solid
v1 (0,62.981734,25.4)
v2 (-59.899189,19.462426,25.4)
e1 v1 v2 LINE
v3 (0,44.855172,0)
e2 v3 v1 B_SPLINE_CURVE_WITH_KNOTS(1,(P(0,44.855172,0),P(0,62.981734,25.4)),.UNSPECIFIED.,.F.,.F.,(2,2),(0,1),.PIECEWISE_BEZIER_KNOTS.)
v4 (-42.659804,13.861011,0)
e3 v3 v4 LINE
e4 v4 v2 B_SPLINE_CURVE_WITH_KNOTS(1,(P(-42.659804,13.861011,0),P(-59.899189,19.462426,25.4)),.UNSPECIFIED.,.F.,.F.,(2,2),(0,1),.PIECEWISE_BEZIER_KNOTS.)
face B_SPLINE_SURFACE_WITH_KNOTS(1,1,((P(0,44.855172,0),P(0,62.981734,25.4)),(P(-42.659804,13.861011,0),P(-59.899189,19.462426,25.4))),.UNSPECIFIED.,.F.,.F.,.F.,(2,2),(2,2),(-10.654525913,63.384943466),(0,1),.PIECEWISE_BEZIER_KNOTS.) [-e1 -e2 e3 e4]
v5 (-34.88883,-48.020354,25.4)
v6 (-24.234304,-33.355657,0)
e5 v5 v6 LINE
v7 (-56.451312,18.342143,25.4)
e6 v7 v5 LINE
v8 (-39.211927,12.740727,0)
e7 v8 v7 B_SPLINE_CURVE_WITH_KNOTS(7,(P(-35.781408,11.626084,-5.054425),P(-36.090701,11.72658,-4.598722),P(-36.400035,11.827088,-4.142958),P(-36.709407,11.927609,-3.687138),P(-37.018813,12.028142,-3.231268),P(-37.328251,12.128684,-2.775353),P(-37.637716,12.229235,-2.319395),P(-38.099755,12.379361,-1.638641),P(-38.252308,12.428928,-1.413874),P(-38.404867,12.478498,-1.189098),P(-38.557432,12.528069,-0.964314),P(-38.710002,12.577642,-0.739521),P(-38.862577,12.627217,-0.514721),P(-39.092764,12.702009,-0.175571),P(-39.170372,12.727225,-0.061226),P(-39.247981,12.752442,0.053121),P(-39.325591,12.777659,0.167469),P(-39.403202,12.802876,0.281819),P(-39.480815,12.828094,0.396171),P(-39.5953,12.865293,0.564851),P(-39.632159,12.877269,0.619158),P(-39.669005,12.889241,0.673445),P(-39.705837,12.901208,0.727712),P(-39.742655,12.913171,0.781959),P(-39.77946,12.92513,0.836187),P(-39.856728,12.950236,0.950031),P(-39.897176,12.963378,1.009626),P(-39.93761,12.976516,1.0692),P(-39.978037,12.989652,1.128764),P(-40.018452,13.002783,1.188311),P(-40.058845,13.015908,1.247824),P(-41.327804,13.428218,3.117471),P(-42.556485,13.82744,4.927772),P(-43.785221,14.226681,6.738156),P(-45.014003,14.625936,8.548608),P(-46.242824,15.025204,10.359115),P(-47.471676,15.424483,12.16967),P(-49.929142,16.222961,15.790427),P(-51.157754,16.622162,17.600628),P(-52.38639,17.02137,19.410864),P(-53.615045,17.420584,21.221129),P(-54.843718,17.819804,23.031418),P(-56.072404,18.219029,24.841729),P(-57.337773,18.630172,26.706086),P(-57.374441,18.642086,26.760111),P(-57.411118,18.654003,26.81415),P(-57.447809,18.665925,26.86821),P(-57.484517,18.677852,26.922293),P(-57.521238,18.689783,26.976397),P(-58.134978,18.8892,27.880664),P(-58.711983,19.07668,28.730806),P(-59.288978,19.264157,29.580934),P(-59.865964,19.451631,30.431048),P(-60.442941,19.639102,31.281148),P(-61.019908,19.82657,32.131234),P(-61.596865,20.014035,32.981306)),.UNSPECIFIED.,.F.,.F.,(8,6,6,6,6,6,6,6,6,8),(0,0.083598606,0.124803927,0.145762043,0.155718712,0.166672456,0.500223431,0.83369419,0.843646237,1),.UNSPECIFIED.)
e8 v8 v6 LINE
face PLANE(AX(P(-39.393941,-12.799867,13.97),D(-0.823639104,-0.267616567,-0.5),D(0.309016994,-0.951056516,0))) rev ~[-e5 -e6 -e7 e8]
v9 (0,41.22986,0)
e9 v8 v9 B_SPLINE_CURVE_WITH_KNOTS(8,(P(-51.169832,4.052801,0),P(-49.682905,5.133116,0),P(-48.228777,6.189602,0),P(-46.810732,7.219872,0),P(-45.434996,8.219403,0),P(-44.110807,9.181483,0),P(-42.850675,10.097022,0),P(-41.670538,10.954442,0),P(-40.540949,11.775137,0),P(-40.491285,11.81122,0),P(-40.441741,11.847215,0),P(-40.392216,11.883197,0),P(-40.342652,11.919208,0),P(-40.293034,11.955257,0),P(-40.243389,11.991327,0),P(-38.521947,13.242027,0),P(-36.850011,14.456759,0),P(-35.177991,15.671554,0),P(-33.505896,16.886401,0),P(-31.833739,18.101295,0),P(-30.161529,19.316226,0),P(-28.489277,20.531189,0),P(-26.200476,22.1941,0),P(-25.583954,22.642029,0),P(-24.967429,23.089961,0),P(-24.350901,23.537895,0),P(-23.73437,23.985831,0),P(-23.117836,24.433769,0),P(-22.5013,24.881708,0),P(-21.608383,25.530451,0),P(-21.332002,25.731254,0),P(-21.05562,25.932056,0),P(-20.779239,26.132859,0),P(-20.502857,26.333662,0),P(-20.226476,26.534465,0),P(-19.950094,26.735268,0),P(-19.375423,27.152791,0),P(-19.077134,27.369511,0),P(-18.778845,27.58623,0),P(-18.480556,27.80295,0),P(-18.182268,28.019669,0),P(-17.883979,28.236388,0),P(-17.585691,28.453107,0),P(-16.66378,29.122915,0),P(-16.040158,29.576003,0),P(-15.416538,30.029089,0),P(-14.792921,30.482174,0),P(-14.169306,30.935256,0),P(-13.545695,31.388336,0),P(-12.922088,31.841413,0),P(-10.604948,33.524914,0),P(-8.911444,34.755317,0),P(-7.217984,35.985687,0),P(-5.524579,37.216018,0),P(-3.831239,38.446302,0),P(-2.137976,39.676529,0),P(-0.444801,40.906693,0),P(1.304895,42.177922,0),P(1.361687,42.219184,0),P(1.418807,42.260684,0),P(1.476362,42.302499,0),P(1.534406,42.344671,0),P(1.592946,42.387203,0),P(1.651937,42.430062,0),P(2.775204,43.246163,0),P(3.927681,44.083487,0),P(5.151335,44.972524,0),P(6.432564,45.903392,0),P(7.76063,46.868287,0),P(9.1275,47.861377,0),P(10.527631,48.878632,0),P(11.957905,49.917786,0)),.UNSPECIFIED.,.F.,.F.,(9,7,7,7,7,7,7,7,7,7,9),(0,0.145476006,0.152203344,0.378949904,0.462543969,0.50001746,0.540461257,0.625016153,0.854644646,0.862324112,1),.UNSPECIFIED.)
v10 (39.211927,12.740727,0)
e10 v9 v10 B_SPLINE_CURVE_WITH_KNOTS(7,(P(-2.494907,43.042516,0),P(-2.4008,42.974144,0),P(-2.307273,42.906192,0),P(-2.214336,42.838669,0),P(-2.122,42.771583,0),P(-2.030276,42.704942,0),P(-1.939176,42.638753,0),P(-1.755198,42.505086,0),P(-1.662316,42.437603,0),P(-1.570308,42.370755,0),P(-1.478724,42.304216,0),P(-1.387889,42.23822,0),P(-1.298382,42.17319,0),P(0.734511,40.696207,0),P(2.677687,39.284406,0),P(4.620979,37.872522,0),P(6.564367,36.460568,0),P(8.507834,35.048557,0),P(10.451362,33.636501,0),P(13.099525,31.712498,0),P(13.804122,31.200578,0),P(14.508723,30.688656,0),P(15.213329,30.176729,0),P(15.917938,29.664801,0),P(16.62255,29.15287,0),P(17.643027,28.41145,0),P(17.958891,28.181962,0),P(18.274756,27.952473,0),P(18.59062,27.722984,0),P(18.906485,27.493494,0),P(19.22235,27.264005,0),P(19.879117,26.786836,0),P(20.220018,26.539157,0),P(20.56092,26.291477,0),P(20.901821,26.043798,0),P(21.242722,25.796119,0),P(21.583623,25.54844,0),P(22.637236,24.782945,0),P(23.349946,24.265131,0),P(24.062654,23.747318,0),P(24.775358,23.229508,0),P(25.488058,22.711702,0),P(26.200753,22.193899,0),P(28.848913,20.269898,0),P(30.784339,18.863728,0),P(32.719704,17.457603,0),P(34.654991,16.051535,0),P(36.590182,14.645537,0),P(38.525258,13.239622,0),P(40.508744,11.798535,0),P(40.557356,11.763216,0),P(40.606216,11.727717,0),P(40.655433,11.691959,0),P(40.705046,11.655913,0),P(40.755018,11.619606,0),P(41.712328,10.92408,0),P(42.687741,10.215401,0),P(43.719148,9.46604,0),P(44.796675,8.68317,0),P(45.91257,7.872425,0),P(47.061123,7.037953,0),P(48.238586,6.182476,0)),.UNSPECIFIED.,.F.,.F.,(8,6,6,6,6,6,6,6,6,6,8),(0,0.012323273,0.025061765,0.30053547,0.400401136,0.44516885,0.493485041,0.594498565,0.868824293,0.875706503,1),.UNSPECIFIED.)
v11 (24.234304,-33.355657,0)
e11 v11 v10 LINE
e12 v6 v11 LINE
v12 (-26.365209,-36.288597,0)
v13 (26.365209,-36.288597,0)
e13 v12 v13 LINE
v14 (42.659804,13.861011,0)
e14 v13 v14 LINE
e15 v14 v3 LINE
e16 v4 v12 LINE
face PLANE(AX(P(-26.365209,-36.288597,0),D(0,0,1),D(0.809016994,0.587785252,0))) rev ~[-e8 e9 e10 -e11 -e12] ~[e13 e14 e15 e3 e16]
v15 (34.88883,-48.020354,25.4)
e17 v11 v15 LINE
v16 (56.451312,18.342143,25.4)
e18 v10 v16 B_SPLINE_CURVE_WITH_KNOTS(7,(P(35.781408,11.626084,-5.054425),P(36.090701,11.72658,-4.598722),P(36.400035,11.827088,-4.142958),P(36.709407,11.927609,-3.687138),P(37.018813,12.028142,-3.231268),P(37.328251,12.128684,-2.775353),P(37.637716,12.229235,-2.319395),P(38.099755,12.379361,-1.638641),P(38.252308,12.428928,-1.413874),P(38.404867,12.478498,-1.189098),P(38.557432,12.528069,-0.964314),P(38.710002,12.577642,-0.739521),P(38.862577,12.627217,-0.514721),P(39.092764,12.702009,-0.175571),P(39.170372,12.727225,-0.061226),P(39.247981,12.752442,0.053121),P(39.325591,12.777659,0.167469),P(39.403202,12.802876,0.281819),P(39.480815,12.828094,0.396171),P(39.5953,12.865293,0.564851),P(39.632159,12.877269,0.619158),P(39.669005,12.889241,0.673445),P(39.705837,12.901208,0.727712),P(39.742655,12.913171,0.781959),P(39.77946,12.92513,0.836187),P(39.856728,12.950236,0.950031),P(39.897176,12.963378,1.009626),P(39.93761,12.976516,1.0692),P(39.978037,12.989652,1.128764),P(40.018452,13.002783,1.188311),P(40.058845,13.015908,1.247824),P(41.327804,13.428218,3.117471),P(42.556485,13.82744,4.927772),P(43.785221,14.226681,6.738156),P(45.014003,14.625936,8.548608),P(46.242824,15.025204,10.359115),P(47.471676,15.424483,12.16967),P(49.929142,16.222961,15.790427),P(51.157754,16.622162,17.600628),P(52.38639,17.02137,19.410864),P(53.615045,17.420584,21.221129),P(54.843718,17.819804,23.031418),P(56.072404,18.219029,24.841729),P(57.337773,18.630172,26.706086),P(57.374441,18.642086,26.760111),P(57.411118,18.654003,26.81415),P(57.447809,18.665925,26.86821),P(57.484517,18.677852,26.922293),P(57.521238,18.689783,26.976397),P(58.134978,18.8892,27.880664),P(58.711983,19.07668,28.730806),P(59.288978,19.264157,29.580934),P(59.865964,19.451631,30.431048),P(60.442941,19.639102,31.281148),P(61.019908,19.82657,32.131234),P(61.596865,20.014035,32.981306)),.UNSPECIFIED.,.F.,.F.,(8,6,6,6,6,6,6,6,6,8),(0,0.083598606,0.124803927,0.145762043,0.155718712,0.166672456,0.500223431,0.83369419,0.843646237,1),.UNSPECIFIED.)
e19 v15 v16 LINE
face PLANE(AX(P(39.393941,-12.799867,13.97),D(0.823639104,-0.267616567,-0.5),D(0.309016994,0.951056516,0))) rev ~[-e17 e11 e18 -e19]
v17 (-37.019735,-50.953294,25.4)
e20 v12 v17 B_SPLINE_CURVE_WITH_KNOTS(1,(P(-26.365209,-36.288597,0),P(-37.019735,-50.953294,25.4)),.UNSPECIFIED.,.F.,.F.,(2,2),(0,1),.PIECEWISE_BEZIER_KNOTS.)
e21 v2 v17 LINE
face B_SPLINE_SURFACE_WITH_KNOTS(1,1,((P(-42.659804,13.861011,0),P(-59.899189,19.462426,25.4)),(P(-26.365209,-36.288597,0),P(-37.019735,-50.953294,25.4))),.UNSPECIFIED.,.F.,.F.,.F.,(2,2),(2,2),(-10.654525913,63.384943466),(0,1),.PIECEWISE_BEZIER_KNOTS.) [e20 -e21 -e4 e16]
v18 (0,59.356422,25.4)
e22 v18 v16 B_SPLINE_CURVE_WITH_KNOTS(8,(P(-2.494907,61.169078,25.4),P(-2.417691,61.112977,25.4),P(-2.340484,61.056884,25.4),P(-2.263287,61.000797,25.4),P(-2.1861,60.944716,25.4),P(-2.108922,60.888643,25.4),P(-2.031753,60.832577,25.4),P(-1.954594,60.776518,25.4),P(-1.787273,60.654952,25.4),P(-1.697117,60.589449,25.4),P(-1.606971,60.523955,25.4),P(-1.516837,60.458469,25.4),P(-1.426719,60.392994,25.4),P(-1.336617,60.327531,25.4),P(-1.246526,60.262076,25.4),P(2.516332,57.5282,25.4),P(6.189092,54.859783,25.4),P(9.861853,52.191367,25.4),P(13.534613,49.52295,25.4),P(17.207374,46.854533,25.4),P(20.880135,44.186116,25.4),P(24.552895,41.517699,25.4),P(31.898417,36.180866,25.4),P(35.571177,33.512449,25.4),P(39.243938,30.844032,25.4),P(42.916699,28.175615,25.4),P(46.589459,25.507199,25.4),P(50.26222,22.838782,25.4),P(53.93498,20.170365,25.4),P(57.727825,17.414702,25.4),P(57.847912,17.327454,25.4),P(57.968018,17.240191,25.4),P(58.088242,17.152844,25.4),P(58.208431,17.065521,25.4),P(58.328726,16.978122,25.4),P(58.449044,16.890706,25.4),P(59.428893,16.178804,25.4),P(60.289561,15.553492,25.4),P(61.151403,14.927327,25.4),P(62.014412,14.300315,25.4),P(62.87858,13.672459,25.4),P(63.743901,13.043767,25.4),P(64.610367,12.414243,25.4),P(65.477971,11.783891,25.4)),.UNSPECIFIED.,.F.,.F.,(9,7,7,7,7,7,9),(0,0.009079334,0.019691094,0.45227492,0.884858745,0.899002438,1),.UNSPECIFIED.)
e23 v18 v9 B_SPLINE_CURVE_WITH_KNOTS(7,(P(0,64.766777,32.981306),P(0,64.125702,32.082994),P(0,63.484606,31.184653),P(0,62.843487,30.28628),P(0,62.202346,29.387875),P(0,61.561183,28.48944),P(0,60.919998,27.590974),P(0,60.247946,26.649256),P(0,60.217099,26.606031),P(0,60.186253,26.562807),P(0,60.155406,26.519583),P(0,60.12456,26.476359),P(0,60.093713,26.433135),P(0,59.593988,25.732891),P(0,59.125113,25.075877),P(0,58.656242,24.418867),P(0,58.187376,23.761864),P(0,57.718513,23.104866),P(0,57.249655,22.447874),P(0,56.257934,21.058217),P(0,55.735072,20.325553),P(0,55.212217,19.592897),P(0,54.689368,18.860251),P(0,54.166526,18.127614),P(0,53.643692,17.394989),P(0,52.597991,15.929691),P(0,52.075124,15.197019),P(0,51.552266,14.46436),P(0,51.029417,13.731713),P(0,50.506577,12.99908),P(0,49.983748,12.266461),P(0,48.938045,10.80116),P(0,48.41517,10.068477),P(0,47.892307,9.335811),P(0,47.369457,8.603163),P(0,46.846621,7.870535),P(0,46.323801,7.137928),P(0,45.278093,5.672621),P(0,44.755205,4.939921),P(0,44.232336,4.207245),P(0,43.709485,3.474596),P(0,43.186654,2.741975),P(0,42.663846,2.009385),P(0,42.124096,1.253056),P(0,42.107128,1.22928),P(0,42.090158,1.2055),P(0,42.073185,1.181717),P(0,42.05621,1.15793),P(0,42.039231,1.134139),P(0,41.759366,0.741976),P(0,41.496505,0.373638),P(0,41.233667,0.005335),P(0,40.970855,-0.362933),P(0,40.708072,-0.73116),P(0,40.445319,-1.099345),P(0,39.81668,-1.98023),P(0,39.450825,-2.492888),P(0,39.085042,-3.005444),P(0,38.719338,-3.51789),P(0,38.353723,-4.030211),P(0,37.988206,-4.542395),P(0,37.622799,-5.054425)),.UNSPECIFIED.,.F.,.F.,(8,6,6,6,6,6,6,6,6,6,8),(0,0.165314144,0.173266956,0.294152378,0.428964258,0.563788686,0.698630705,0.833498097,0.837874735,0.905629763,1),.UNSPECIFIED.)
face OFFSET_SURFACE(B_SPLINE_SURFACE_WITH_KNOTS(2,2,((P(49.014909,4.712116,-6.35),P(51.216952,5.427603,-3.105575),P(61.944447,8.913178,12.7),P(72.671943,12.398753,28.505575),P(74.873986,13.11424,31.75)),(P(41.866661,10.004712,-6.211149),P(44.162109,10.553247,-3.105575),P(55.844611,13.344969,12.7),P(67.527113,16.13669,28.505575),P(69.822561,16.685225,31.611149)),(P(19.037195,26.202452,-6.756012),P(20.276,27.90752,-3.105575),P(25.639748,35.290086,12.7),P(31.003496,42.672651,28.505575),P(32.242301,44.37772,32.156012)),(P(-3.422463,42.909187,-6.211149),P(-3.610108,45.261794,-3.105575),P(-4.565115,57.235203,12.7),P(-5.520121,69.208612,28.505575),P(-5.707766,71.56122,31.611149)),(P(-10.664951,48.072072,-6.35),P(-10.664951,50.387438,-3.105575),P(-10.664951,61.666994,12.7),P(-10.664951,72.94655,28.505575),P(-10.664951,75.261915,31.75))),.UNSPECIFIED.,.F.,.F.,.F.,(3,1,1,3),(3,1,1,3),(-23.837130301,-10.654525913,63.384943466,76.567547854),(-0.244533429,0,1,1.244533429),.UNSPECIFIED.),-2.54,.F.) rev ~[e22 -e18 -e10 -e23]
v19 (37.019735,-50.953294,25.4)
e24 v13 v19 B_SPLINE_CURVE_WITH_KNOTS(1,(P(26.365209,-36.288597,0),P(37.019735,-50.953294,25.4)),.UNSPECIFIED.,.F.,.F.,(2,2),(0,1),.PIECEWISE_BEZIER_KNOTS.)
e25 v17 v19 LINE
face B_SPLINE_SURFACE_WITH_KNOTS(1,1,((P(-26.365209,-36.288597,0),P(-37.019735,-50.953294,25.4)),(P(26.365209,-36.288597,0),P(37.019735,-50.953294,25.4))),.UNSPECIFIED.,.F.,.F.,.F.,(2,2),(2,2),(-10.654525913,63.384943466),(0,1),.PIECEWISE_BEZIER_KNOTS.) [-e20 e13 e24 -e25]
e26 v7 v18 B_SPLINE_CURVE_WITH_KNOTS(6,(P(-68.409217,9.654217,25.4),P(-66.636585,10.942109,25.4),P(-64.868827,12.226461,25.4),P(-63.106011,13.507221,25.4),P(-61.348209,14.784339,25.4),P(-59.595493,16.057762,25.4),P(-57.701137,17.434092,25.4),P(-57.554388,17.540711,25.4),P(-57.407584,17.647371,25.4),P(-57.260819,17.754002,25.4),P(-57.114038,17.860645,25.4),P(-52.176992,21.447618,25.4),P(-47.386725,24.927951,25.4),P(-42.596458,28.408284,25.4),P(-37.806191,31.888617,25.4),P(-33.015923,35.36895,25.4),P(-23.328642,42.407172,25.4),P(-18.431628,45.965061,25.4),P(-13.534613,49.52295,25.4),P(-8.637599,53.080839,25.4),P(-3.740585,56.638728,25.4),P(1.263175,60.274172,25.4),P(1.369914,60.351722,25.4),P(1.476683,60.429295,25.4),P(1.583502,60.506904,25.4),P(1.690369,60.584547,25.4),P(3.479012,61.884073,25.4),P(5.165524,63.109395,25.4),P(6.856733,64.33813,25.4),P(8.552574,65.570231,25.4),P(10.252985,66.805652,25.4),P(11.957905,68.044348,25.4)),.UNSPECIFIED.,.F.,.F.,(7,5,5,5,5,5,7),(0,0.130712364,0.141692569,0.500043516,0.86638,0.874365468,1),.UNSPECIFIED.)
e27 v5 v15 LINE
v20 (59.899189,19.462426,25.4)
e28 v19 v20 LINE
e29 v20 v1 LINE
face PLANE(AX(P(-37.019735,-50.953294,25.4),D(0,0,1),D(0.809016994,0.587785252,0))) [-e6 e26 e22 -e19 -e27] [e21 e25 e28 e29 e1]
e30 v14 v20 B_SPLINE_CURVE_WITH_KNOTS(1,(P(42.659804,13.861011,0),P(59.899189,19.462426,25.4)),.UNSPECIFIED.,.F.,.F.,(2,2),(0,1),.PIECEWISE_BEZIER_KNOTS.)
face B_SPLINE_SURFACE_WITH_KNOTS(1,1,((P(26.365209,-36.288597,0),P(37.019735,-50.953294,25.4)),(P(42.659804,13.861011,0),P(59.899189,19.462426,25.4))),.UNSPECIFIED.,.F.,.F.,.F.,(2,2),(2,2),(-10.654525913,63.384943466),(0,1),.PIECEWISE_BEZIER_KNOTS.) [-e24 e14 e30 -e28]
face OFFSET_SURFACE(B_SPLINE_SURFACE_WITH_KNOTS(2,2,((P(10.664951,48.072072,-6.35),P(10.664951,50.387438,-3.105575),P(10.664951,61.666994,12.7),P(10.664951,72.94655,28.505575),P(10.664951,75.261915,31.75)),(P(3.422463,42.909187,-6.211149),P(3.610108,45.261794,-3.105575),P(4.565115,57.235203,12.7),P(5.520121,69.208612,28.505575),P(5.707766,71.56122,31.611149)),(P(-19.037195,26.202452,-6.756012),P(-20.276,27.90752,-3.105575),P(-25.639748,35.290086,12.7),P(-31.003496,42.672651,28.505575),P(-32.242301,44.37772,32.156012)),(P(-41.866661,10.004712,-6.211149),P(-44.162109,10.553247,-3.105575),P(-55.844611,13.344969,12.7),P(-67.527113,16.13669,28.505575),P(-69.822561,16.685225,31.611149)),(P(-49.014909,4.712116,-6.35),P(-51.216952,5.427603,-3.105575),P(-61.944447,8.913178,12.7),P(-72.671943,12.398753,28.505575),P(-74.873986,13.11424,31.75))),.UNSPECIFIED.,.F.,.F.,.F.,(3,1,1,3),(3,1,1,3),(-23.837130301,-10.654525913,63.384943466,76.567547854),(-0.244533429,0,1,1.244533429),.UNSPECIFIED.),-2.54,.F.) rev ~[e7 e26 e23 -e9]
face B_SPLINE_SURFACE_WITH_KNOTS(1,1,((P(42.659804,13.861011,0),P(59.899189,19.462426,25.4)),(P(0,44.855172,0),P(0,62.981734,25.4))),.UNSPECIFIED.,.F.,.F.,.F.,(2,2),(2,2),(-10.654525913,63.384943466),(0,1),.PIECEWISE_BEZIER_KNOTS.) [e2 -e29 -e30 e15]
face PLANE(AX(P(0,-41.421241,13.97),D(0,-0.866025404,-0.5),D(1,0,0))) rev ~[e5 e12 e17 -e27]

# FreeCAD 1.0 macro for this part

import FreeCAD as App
import Part
import Sketcher
Q = App.Units.Quantity


def faces_at(feature, points):
    """Names of the faces that lie closest to the given points."""
    faces = feature.Shape.Faces
    near = lambda p: min(range(len(faces)), key=lambda i: faces[i].distToShape(Part.Vertex(*p))[0])
    return sorted({f"Face{near(p) + 1}" for p in points})

doc = App.newDocument("Part")
body = doc.addObject("PartDesign::Body", "Body")

sketch1 = body.newObject("Sketcher::SketchObject", "Sketch")
sketch1.AttachmentSupport = (doc.getObject("XY_Plane"), [""])
sketch1.MapMode = "FlatFace"
sketch1.addGeometry(Part.LineSegment(App.Vector(-26, -36, 0), App.Vector(26, -36, 0)), False)
sketch1.addGeometry(Part.LineSegment(App.Vector(26, -36, 0), App.Vector(43, 14, 0)), False)
sketch1.addGeometry(Part.LineSegment(App.Vector(43, 14, 0), App.Vector(0, 45, 0)), False)
sketch1.addGeometry(Part.LineSegment(App.Vector(0, 45, 0), App.Vector(-43, 14, 0)), False)
sketch1.addGeometry(Part.LineSegment(App.Vector(-43, 14, 0), App.Vector(-26, -36, 0)), False)
sketch1.addConstraint(Sketcher.Constraint("Coincident", 0, 2, 1, 1))
sketch1.addConstraint(Sketcher.Constraint("Coincident", 1, 2, 2, 1))
sketch1.addConstraint(Sketcher.Constraint("Coincident", 2, 2, 3, 1))
sketch1.addConstraint(Sketcher.Constraint("Coincident", 3, 2, 4, 1))
sketch1.addConstraint(Sketcher.Constraint("Coincident", 4, 2, 0, 1))
sketch1.addConstraint(Sketcher.Constraint("Horizontal", 0))
sketch1.addConstraint(Sketcher.Constraint("Symmetric", 1, 2, 3, 2, -2))
sketch1.addConstraint(Sketcher.Constraint("PointOnObject", 2, 2, -2))
sketch1.addConstraint(Sketcher.Constraint("Equal", 1, 2))
sketch1.addConstraint(Sketcher.Constraint("Equal", 3, 4))
sketch1.addConstraint(Sketcher.Constraint("Angle", 1, Q("72 deg")))
sketch1.addConstraint(Sketcher.Constraint("Angle", 2, Q("144 deg")))
sketch1.addConstraint(Sketcher.Constraint("DistanceX", 0, 1, 0, 2, Q("52.730418 mm")))
sketch1.addConstraint(Sketcher.Constraint("DistanceY", -1, 1, 1, 2, Q("13.861011 mm")))
pad1 = body.newObject("PartDesign::Pad", "Pad")
pad1.Profile = sketch1
pad1.Length = Q("1 in")
pad1.TaperAngle = 30
doc.recompute()

thickness = body.newObject("PartDesign::Thickness", "Thickness")
thickness.Base = (pad1, faces_at(pad1, [(3.535, -4.866, 25.4), (2.518, -3.465, 0)]))
thickness.Value = Q("0.1 in")
thickness.Reversed = True
thickness.Join = "Intersection"

doc.recompute()
